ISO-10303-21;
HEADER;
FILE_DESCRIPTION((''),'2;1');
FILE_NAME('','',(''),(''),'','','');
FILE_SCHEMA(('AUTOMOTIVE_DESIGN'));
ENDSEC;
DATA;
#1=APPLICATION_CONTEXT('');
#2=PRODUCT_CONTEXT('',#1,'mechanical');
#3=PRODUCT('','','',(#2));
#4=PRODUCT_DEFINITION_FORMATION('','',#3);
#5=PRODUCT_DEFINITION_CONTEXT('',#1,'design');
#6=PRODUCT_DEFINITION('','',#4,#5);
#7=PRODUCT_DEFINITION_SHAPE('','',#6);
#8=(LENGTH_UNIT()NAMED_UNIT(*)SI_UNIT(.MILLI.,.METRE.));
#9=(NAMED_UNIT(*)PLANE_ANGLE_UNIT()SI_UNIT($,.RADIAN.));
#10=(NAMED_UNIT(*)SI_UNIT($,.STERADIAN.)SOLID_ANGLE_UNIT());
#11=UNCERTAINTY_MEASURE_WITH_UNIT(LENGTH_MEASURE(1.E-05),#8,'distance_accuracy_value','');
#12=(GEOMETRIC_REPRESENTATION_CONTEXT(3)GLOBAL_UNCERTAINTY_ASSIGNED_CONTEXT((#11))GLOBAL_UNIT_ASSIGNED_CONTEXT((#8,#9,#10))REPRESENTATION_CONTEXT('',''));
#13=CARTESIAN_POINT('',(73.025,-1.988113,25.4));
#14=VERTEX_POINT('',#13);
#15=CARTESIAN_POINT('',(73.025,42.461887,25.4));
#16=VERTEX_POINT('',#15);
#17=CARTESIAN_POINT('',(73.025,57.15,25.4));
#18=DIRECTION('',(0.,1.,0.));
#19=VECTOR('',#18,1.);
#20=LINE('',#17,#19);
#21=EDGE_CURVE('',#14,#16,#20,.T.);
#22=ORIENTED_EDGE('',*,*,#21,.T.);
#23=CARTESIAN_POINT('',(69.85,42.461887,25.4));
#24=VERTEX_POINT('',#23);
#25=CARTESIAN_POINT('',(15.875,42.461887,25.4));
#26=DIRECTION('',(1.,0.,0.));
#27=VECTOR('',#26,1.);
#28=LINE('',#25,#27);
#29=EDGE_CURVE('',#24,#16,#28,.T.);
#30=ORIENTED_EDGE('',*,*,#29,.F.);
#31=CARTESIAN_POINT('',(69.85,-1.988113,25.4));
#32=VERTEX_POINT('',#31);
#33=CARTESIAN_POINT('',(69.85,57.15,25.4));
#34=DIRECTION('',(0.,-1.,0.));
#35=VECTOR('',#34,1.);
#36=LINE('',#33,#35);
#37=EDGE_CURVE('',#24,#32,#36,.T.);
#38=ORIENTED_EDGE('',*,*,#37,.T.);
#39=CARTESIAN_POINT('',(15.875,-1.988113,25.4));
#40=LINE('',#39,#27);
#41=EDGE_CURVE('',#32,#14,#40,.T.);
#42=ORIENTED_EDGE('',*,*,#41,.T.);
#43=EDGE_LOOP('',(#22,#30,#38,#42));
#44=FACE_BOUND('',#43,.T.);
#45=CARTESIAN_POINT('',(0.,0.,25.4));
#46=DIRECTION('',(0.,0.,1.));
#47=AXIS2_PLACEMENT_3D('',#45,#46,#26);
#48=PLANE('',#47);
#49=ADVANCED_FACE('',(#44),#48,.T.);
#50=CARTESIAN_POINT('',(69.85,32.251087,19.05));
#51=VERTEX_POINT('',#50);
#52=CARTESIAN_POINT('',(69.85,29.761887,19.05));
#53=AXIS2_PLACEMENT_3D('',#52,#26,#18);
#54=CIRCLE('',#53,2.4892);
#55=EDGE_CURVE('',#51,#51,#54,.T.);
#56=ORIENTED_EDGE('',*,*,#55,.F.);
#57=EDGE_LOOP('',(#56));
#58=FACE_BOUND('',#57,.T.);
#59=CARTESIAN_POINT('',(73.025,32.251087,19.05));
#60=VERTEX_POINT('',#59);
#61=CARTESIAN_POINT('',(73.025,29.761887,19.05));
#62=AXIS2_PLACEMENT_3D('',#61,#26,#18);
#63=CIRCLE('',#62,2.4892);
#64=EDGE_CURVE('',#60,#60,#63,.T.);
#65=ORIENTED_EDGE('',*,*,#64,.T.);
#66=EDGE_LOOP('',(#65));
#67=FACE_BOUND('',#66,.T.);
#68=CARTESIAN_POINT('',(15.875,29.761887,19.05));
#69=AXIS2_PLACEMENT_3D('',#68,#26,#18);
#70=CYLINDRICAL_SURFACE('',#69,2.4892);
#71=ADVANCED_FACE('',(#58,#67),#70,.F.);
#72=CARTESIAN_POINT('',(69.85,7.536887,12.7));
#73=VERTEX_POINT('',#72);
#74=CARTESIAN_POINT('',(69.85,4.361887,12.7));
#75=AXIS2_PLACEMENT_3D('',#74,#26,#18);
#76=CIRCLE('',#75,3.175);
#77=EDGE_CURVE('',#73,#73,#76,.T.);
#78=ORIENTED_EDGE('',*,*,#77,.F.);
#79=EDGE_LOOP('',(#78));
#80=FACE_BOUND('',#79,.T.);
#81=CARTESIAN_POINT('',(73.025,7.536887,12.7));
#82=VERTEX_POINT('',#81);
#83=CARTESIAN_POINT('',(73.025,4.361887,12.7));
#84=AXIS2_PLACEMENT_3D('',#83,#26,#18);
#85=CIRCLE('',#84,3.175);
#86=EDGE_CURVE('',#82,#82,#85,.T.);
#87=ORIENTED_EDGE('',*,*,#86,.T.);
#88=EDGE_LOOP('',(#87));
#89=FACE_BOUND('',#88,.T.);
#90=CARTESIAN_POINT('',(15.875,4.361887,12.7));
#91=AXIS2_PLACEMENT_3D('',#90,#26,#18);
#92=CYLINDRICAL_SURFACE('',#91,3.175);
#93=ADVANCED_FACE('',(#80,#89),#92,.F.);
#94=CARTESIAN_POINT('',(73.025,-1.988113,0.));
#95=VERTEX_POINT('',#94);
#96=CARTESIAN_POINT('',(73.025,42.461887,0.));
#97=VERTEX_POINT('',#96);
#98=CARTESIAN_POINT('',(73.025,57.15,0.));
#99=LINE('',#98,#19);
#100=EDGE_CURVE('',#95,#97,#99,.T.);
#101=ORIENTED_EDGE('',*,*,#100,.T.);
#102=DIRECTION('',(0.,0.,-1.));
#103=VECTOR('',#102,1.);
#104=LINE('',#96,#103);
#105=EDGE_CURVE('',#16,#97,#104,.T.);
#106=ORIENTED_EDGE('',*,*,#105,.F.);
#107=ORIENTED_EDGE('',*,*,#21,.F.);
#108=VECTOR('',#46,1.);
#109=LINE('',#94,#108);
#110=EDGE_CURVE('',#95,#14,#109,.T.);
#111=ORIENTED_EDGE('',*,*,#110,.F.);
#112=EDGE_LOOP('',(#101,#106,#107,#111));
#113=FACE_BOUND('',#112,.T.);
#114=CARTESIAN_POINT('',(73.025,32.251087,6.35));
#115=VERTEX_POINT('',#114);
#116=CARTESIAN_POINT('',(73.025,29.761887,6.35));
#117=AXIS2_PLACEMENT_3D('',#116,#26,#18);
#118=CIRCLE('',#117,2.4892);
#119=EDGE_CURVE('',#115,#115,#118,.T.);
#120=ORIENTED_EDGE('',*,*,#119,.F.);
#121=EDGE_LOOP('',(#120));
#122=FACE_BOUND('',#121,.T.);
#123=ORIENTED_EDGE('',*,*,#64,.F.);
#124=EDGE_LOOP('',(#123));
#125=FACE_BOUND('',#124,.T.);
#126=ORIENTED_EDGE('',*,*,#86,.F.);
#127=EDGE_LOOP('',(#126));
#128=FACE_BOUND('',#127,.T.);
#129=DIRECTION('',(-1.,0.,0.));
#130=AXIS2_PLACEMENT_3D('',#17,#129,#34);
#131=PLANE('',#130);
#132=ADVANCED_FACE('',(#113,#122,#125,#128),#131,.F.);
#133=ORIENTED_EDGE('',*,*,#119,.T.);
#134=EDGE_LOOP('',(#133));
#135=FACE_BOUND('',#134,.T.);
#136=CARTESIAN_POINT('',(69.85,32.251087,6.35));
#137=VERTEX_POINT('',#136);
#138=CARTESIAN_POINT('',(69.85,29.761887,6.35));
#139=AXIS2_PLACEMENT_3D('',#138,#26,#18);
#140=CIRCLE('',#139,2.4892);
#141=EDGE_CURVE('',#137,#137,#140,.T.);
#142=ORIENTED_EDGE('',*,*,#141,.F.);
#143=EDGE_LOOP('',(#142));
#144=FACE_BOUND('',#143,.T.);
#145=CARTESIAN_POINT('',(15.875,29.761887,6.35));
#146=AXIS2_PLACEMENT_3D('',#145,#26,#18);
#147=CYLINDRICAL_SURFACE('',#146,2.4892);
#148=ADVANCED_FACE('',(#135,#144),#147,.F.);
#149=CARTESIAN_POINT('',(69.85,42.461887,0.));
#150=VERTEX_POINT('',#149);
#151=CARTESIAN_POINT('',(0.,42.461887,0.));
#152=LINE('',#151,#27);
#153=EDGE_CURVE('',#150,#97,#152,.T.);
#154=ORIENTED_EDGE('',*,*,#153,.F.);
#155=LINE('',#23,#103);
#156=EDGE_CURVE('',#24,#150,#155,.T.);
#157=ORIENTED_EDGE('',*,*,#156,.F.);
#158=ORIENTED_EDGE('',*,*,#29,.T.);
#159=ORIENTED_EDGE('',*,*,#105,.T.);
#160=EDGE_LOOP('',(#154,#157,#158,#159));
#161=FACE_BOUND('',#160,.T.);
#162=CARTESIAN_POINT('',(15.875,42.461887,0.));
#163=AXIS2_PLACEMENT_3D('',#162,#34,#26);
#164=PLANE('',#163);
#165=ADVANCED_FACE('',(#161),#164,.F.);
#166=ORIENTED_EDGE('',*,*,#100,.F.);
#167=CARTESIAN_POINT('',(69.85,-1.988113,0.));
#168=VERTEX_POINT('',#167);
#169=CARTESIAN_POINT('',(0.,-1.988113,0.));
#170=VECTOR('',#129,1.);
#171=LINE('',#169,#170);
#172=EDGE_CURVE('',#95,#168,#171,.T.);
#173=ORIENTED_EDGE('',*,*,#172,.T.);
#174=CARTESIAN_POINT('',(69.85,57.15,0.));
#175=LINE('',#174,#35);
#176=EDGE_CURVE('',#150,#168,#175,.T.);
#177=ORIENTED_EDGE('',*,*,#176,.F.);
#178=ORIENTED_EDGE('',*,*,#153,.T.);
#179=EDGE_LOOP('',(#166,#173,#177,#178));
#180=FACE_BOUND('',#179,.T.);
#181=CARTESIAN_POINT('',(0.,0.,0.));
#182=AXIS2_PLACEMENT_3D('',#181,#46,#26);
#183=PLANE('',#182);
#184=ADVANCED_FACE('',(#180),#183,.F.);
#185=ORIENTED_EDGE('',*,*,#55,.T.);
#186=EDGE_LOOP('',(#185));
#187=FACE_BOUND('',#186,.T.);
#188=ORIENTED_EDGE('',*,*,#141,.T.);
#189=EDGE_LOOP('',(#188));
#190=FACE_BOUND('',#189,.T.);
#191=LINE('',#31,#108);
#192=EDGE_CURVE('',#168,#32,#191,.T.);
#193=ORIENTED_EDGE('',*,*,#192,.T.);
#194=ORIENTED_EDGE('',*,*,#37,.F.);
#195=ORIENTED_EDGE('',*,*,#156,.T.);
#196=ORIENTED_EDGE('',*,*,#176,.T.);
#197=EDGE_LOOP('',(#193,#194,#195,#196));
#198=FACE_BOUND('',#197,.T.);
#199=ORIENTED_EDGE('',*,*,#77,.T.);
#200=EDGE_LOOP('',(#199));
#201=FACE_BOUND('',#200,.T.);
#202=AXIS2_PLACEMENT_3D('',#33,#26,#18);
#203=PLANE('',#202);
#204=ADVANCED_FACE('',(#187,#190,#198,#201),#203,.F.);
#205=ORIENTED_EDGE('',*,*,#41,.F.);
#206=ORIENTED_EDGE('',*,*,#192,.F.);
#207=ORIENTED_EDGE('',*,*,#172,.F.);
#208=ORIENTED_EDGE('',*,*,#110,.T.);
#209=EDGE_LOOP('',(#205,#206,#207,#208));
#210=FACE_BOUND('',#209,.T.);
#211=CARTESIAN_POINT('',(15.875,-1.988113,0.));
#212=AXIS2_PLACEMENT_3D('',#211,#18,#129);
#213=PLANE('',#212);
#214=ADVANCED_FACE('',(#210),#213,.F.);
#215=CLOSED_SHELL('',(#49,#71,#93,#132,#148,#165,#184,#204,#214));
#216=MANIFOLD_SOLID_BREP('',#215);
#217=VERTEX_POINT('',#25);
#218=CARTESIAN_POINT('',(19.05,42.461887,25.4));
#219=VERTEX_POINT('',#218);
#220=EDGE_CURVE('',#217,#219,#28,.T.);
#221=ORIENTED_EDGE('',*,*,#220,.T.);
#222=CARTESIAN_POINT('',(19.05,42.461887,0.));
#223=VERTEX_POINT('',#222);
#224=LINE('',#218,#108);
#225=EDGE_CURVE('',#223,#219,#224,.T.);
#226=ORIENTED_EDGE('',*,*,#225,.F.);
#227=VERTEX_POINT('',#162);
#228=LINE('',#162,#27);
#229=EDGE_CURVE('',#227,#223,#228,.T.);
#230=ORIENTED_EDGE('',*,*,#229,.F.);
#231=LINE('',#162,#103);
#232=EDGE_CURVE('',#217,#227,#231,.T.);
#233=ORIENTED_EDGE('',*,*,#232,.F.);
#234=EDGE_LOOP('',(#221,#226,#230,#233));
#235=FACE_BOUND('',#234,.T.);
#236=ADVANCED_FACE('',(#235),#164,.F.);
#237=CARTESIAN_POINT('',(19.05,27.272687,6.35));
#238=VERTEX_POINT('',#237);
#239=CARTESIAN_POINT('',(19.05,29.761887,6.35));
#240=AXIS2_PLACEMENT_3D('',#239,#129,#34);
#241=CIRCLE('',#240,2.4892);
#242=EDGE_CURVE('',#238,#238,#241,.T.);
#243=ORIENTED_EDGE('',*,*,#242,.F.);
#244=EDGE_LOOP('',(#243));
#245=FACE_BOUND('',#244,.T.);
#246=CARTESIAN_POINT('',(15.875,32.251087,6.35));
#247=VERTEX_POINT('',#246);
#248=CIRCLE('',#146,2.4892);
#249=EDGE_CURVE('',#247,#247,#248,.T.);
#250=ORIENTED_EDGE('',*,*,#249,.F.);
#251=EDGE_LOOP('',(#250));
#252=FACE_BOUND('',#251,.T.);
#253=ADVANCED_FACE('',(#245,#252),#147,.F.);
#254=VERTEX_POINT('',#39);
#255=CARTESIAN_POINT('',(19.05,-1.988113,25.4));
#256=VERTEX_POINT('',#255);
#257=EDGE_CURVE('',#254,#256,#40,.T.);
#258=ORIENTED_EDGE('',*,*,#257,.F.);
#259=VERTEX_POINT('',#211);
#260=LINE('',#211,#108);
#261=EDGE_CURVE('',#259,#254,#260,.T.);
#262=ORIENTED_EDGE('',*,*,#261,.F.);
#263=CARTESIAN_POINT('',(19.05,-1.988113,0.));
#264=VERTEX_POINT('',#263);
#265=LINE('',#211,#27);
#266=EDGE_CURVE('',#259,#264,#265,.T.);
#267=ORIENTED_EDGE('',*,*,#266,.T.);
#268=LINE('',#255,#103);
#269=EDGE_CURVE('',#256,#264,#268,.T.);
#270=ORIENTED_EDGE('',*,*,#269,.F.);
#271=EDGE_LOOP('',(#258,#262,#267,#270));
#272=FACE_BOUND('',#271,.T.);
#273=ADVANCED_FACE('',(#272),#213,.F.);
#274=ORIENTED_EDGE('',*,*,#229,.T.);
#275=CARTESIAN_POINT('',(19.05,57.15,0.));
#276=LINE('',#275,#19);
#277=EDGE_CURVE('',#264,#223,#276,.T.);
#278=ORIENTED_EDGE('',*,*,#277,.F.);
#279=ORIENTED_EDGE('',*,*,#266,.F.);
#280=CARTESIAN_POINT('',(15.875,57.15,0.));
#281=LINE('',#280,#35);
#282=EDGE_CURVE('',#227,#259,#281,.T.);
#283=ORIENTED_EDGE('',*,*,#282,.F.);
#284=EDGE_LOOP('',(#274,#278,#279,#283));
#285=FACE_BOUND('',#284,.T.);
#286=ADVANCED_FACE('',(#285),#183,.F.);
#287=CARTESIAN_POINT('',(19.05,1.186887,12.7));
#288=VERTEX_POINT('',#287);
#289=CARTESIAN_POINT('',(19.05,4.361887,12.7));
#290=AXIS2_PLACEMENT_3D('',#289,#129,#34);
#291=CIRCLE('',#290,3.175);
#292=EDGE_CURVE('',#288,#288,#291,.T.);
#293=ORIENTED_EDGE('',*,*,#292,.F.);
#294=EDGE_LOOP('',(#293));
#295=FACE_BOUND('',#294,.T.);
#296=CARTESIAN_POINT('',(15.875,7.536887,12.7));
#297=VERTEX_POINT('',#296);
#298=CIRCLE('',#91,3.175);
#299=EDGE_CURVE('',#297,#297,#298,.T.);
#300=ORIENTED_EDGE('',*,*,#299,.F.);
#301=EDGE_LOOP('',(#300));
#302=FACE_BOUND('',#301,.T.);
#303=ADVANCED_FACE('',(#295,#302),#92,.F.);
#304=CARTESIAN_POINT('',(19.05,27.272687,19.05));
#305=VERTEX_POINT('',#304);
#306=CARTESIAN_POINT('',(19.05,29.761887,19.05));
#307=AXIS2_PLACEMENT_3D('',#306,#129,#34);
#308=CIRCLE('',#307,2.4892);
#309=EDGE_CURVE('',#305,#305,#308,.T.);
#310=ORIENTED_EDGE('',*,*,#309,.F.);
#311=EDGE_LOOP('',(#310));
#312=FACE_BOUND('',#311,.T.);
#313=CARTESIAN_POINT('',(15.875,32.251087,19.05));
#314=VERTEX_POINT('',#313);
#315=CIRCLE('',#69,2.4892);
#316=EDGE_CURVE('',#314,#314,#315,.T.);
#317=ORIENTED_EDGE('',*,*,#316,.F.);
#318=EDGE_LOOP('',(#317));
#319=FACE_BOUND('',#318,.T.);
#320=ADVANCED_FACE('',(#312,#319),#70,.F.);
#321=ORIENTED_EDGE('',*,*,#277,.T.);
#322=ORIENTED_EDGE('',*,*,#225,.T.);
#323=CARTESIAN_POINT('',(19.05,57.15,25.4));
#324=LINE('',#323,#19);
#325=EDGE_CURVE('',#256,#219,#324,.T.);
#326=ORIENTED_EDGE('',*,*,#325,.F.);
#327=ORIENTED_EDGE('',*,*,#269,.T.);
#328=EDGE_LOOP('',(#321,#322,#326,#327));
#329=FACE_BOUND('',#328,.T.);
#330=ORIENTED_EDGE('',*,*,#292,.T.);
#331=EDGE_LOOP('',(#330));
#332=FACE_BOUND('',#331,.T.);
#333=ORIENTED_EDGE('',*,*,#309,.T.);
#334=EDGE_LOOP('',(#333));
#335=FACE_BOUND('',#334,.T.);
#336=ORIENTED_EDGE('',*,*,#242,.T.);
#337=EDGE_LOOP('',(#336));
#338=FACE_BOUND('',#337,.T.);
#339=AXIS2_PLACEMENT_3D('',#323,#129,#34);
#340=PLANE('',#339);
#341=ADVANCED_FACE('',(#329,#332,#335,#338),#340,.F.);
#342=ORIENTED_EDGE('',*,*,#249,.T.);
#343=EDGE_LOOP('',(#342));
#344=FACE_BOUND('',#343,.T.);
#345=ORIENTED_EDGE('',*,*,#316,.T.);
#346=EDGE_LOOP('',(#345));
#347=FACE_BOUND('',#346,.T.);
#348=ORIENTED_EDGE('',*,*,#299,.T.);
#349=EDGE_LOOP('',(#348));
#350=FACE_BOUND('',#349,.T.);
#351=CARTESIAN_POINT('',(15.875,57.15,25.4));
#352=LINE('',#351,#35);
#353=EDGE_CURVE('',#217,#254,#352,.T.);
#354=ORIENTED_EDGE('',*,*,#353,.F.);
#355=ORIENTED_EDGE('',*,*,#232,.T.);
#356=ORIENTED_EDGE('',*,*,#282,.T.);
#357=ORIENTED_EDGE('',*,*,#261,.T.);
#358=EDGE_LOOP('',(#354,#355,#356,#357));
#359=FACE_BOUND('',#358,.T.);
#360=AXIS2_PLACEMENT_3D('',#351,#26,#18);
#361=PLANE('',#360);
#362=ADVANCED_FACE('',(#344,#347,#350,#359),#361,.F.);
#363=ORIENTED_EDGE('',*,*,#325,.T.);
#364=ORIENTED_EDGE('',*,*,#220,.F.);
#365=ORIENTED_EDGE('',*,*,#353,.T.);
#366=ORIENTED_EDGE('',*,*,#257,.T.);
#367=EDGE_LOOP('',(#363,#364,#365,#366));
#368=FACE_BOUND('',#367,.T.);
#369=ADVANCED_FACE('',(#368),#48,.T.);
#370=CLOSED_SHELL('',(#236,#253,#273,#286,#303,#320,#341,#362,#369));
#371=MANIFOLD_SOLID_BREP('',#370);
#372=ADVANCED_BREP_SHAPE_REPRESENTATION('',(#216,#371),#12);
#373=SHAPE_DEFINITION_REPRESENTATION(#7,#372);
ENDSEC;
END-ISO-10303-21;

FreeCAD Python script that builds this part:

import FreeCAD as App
import Part
import Sketcher

V = App.Vector
Q = App.Units.Quantity

doc = App.newDocument("Part")
body = doc.addObject("PartDesign::Body", "Body")

sketch1 = body.newObject("Sketcher::SketchObject", "Sketch")
sketch1.AttachmentSupport = (doc.getObject("XY_Plane"), [""])
sketch1.MapMode = "FlatFace"
sketch1.addGeometry([
    Part.LineSegment(V(69.8, 57.2, 0), V(69.8, -11.5, 0)),
    Part.LineSegment(V(69.8, -11.5, 0), V(73, -11.5, 0)),
    Part.LineSegment(V(73, -11.5, 0), V(73, 57.2, 0)),
    Part.LineSegment(V(73, 57.2, 0), V(69.8, 57.2, 0)),
], False)
sketch1.addConstraint([
    Sketcher.Constraint("Coincident", 0, 2, 1, 1),
    Sketcher.Constraint("Coincident", 1, 2, 2, 1),
    Sketcher.Constraint("Coincident", 2, 2, 3, 1),
    Sketcher.Constraint("Coincident", 3, 2, 0, 1),
    Sketcher.Constraint("Vertical", 0),
    Sketcher.Constraint("Horizontal", 1),
    Sketcher.Constraint("Vertical", 2),
    Sketcher.Constraint("Horizontal", 3),
    Sketcher.Constraint("DistanceX", 1, 1, 1, 2, Q("0.125 in")),
    Sketcher.Constraint("DistanceX", -1, 1, 0, 2, Q("2.75 in")),
    Sketcher.Constraint("DistanceY", -1, 1, 2, 2, Q("2.25 in")),
    Sketcher.Constraint("DistanceY", 0, 2, 0, 1, Q("68.663113 mm")),
])
pad1 = body.newObject("PartDesign::Pad", "Pad")
pad1.Profile = sketch1
pad1.Length = Q("1 in")
body2 = doc.addObject("PartDesign::Body", "Body001")

sketch2 = body2.newObject("Sketcher::SketchObject", "Sketch001")
sketch2.AttachmentSupport = (doc.getObject("XY_Plane001"), [""])
sketch2.MapMode = "FlatFace"
sketch2.addGeometry([
    Part.LineSegment(V(15.9, 57.2, 0), V(15.9, -11.5, 0)),
    Part.LineSegment(V(15.9, -11.5, 0), V(19.1, -11.5, 0)),
    Part.LineSegment(V(19.1, -11.5, 0), V(19.1, 57.2, 0)),
    Part.LineSegment(V(19.1, 57.2, 0), V(15.9, 57.2, 0)),
], False)
sketch2.addConstraint([
    Sketcher.Constraint("Coincident", 0, 2, 1, 1),
    Sketcher.Constraint("Coincident", 1, 2, 2, 1),
    Sketcher.Constraint("Coincident", 2, 2, 3, 1),
    Sketcher.Constraint("Coincident", 3, 2, 0, 1),
    Sketcher.Constraint("Vertical", 0),
    Sketcher.Constraint("Horizontal", 1),
    Sketcher.Constraint("Vertical", 2),
    Sketcher.Constraint("Horizontal", 3),
    Sketcher.Constraint("DistanceX", 1, 1, 1, 2, Q("0.125 in")),
    Sketcher.Constraint("DistanceX", -1, 1, 1, 2, Q("0.75 in")),
    Sketcher.Constraint("DistanceY", -1, 1, 2, 2, Q("2.25 in")),
    Sketcher.Constraint("DistanceY", 0, 2, 0, 1, Q("68.663113 mm")),
])
pad2 = body2.newObject("PartDesign::Pad", "Pad001")
pad2.Profile = sketch2
pad2.Length = Q("1 in")
body3 = doc.addObject("PartDesign::Body", "Body002")
body3.AllowCompound = True

sketch3 = body3.newObject("Sketcher::SketchObject", "Sketch002")
sketch3.AttachmentSupport = (doc.getObject("YZ_Plane002"), [""])
sketch3.MapMode = "FlatFace"
sketch3.AttachmentOffset = App.Placement(V(0, 0, 2.875 * 25.4), App.Rotation())
sketch3.addGeometry([
    Part.Circle(V(4.4, 12.7, 0), V(0, 0, 1), 3.2),
    Part.Circle(V(29.8, 19.1, 0), V(0, 0, 1), 2.5),
    Part.Circle(V(29.8, 6.3, 0), V(0, 0, 1), 2.5),
], False)
sketch3.addConstraint([
    Sketcher.Constraint("Equal", 1, 2),
    Sketcher.Constraint("Vertical", 1, 3, 2, 3),
    Sketcher.Constraint("Diameter", 0, Q("0.25 in")),
    Sketcher.Constraint("Diameter", 1, Q("0.196 in")),
    Sketcher.Constraint("DistanceX", 0, 3, 1, 3, Q("1 in")),
    Sketcher.Constraint("DistanceY", -1, 1, 0, 3, Q("0.5 in")),
    Sketcher.Constraint("DistanceY", 2, 3, 1, 3, Q("0.5 in")),
    Sketcher.Constraint("DistanceY", -1, 1, 1, 3, Q("0.75 in")),
    Sketcher.Constraint("DistanceX", -1, 1, 0, 3, Q("4.361887 mm")),
])
pad3 = body3.newObject("PartDesign::Pad", "Pad002")
pad3.Profile = sketch3
pad3.Length = 58.15
pad3.Reversed = True
doc.recompute()

body4 = doc.addObject("PartDesign::Body", "Body003")
body4.BaseFeature = body3
boolean = body.newObject("PartDesign::Boolean", "Boolean")
boolean.Type = "Cut"
boolean.addObjects([body4])
doc.recompute()

boolean2 = body2.newObject("PartDesign::Boolean", "Boolean001")
boolean2.Type = "Cut"
boolean2.addObjects([body3])
body5 = doc.addObject("PartDesign::Body", "Body004")
body5.AllowCompound = True

sketch4 = body5.newObject("Sketcher::SketchObject", "Sketch003")
sketch4.AttachmentSupport = (doc.getObject("YZ_Plane004"), [""])
sketch4.MapMode = "FlatFace"
sketch4.AttachmentOffset = App.Placement(V(0, 0, 2.875 * 25.4), App.Rotation())
sketch4.addGeometry([
    Part.LineSegment(V(-2, 25, 0), V(-12, 25, 0)),
    Part.LineSegment(V(-12, 25, 0), V(-12, 0, 0)),
    Part.LineSegment(V(-12, 0, 0), V(-2, 0, 0)),
    Part.LineSegment(V(-2, 0, 0), V(-2, 25, 0)),
    Part.LineSegment(V(57, 25, 0), V(42, 25, 0)),
    Part.LineSegment(V(42, 25, 0), V(42, 0, 0)),
    Part.LineSegment(V(42, 0, 0), V(57, 0, 0)),
    Part.LineSegment(V(57, 0, 0), V(57, 25, 0)),
], False)
sketch4.addConstraint([
    Sketcher.Constraint("Coincident", 0, 2, 1, 1),
    Sketcher.Constraint("Coincident", 1, 2, 2, 1),
    Sketcher.Constraint("Coincident", 2, 2, 3, 1),
    Sketcher.Constraint("Coincident", 3, 2, 0, 1),
    Sketcher.Constraint("Coincident", 4, 2, 5, 1),
    Sketcher.Constraint("Coincident", 5, 2, 6, 1),
    Sketcher.Constraint("Coincident", 6, 2, 7, 1),
    Sketcher.Constraint("Coincident", 7, 2, 4, 1),
    Sketcher.Constraint("Horizontal", 0),
    Sketcher.Constraint("Vertical", 1),
    Sketcher.Constraint("Horizontal", 2),
    Sketcher.Constraint("Vertical", 3),
    Sketcher.Constraint("Horizontal", 4),
    Sketcher.Constraint("Vertical", 5),
    Sketcher.Constraint("Horizontal", 6),
    Sketcher.Constraint("Vertical", 7),
    Sketcher.Constraint("PointOnObject", 1, 2, -1),
    Sketcher.Constraint("PointOnObject", 5, 2, -1),
    Sketcher.Constraint("Horizontal", 3, 2, 4, 2),
    Sketcher.Constraint("DistanceY", 1, 2, 1, 1, Q("1 in")),
    Sketcher.Constraint("DistanceX", 0, 2, 0, 1, Q("0.375 in")),
    Sketcher.Constraint("DistanceX", -1, 1, 6, 2, Q("2.25 in")),
    Sketcher.Constraint("DistanceX", 3, 2, 4, 2, Q("1.75 in")),
    Sketcher.Constraint("DistanceX", 4, 2, 4, 1, Q("14.688113 mm")),
])
pad4 = body5.newObject("PartDesign::Pad", "Pad003")
pad4.Profile = sketch4
pad4.Length = 58.15
pad4.Reversed = True
doc.recompute()

body6 = doc.addObject("PartDesign::Body", "Body005")
body6.BaseFeature = body5
boolean3 = body.newObject("PartDesign::Boolean", "Boolean002")
boolean3.Type = "Cut"
boolean3.addObjects([body6])
doc.recompute()

boolean4 = body2.newObject("PartDesign::Boolean", "Boolean003")
boolean4.Type = "Cut"
boolean4.addObjects([body5])

doc.recompute()
